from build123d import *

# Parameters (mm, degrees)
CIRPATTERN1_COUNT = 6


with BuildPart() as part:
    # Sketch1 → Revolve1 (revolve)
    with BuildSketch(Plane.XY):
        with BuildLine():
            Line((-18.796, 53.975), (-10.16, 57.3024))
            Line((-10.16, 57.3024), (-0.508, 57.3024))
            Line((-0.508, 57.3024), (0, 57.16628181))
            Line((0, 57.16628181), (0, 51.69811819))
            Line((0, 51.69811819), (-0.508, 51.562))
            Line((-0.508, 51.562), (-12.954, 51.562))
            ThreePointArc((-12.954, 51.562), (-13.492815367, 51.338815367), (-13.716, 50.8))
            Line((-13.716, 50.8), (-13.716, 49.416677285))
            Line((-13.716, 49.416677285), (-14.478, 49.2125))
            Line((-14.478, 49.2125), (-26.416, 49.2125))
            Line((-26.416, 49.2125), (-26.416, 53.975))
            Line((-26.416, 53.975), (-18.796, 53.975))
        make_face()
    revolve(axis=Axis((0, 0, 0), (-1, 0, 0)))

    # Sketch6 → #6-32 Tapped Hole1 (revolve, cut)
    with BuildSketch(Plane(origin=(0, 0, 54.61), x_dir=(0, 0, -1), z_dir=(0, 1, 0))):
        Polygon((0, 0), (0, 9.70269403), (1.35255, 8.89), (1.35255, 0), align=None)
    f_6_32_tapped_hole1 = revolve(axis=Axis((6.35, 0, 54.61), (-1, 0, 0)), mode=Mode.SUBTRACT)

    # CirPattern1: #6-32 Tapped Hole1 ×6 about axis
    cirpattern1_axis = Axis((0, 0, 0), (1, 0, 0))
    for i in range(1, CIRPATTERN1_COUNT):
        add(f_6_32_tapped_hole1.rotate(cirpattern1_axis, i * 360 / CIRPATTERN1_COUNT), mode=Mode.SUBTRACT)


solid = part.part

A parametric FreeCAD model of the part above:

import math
import FreeCAD as App
import Part
import Sketcher
from FreeCAD import Vector
Q = App.Units.Quantity

doc = App.newDocument("Part")
body = doc.addObject("PartDesign::Body", "Body")

sketch1 = doc.addObject("Sketcher::SketchObject", "Sketch")
body.addObject(sketch1)
sketch1.AttachmentSupport = (doc.XY_Plane, [""])
sketch1.MapMode = "FlatFace"
sketch1.addGeometry([
    Part.LineSegment(Vector(-10.16, 57.3024, 0), Vector(-18.796, 53.975, 0)),
    Part.LineSegment(Vector(-18.796, 53.975, 0), Vector(-26.416, 53.975, 0)),
    Part.LineSegment(Vector(-26.416, 53.975, 0), Vector(-26.416, 49.2125, 0)),
    Part.LineSegment(Vector(-26.416, 49.2125, 0), Vector(-14.478, 49.2125, 0)),
    Part.LineSegment(Vector(-14.478, 49.2125, 0), Vector(-13.716, 49.416677, 0)),
    Part.LineSegment(Vector(-13.716, 49.416677, 0), Vector(-13.716, 50.8, 0)),
    Part.ArcOfCircle(Part.Circle(Vector(-12.954, 50.8, 0), Vector(0, 0, 1), 0.762), math.radians(90), math.radians(180)),
    Part.LineSegment(Vector(-12.954, 51.562, 0), Vector(-0.508, 51.562, 0)),
    Part.LineSegment(Vector(-0.508, 51.562, 0), Vector(0, 51.698118, 0)),
    Part.LineSegment(Vector(0, 51.698118, 0), Vector(0, 57.166282, 0)),
    Part.LineSegment(Vector(0, 57.166282, 0), Vector(-0.508, 57.3024, 0)),
    Part.LineSegment(Vector(-0.508, 57.3024, 0), Vector(-10.16, 57.3024, 0)),
], False)
sketch1.addConstraint([
    Sketcher.Constraint("Coincident", 0, 2, 1, 1),
    Sketcher.Constraint("Coincident", 1, 2, 2, 1),
    Sketcher.Constraint("Coincident", 2, 2, 3, 1),
    Sketcher.Constraint("Coincident", 3, 2, 4, 1),
    Sketcher.Constraint("Coincident", 4, 2, 5, 1),
    Sketcher.Constraint("Tangent", 5, 2, 6, 2),
    Sketcher.Constraint("Tangent", 6, 1, 7, 1),
    Sketcher.Constraint("Coincident", 7, 2, 8, 1),
    Sketcher.Constraint("Coincident", 8, 2, 9, 1),
    Sketcher.Constraint("Coincident", 9, 2, 10, 1),
    Sketcher.Constraint("Coincident", 10, 2, 11, 1),
    Sketcher.Constraint("Coincident", 11, 2, 0, 1),
    Sketcher.Constraint("Horizontal", 1),
    Sketcher.Constraint("Vertical", 2),
    Sketcher.Constraint("Horizontal", 3),
    Sketcher.Constraint("Vertical", 5),
    Sketcher.Constraint("Horizontal", 7),
    Sketcher.Constraint("Vertical", 9),
    Sketcher.Constraint("Horizontal", 11),
    Sketcher.Constraint("PointOnObject", 8, 2, -2),
    Sketcher.Constraint("Parallel", 4, 8),
    Sketcher.Constraint("Vertical", 7, 2, 10, 2),
    Sketcher.Constraint("Equal", 8, 10),
    Sketcher.Constraint("Radius", 6, Q("0.03 in")),
    Sketcher.Constraint("DistanceX", 1, 2, 1, 1, Q("0.3 in")),
    Sketcher.Constraint("DistanceY", -1, 1, 6, 3, Q("2 in")),
    Sketcher.Constraint("Angle", 4, Q("15 deg")),
    Sketcher.Constraint("DistanceX", 3, 1, 3, 2, Q("0.47 in")),
    Sketcher.Constraint("DistanceX", 7, 1, 7, 2, Q("0.49 in")),
    Sketcher.Constraint("DistanceX", 11, 2, 11, 1, Q("0.38 in")),
    Sketcher.Constraint("DistanceX", 11, 2, -1, 1, Q("0.4 in")),
    Sketcher.Constraint("DistanceX", 0, 2, 4, 2, Q("0.2 in")),
    Sketcher.Constraint("DistanceY", 2, 2, 2, 1, Q("0.1875 in")),
    Sketcher.Constraint("DistanceY", -1, 1, 0, 2, Q("2.125 in")),
    Sketcher.Constraint("DistanceY", -1, 1, 10, 2, Q("2.256 in")),
])
revolution = doc.addObject("PartDesign::Revolution", "Revolution")
body.addObject(revolution)
revolution.Profile = sketch1
revolution.ReferenceAxis = (sketch1, ["H_Axis"])
revolution.Angle = 360

sketch2 = doc.addObject("Sketcher::SketchObject", "Sketch001")
body.addObject(sketch2)
sketch2.AttachmentSupport = (doc.XZ_Plane, [""])
sketch2.MapMode = "FlatFace"
sketch2.addGeometry([
    Part.LineSegment(Vector(-9.702694, 54.61, 0), Vector(0, 54.61, 0)),
    Part.LineSegment(Vector(0, 54.61, 0), Vector(0, 53.25745, 0)),
    Part.LineSegment(Vector(0, 53.25745, 0), Vector(-8.89, 53.25745, 0)),
    Part.LineSegment(Vector(-8.89, 53.25745, 0), Vector(-9.702694, 54.61, 0)),
], False)
sketch2.addGeometry(Part.LineSegment(Vector(0, 54.61, 0), Vector(-9.702694, 54.61, 0)), True)
sketch2.addConstraint([
    Sketcher.Constraint("Coincident", 0, 2, 1, 1),
    Sketcher.Constraint("Coincident", 1, 2, 2, 1),
    Sketcher.Constraint("Coincident", 2, 2, 3, 1),
    Sketcher.Constraint("Coincident", 3, 2, 0, 1),
    Sketcher.Constraint("Horizontal", 0),
    Sketcher.Constraint("Vertical", 1),
    Sketcher.Constraint("Horizontal", 2),
    Sketcher.Constraint("Horizontal", 4),
    Sketcher.Constraint("Coincident", 4, 1, 0, 2),
    Sketcher.Constraint("PointOnObject", 0, 2, -2),
    Sketcher.Constraint("Equal", 0, 4),
    Sketcher.Constraint("Angle", 3, Q("121 deg")),
    Sketcher.Constraint("DistanceX", 2, 2, 2, 1, Q("0.35 in")),
    Sketcher.Constraint("DistanceY", -1, 1, 0, 2, Q("2.15 in")),
    Sketcher.Constraint("DistanceY", 1, 2, 1, 1, 1.35255),
])
groove = doc.addObject("PartDesign::Groove", "Groove")
body.addObject(groove)
groove.Profile = sketch2
groove.ReferenceAxis = (sketch2, ["Axis0"])
groove.Angle = 360
doc.recompute()

polarpattern = doc.addObject("PartDesign::PolarPattern", "PolarPattern")
body.addObject(polarpattern)
polarpattern.Originals = [groove]
polarpattern.Axis = (doc.X_Axis, [""])
polarpattern.Angle = 360
polarpattern.Occurrences = 6
body.Tip = polarpattern

doc.recompute()
